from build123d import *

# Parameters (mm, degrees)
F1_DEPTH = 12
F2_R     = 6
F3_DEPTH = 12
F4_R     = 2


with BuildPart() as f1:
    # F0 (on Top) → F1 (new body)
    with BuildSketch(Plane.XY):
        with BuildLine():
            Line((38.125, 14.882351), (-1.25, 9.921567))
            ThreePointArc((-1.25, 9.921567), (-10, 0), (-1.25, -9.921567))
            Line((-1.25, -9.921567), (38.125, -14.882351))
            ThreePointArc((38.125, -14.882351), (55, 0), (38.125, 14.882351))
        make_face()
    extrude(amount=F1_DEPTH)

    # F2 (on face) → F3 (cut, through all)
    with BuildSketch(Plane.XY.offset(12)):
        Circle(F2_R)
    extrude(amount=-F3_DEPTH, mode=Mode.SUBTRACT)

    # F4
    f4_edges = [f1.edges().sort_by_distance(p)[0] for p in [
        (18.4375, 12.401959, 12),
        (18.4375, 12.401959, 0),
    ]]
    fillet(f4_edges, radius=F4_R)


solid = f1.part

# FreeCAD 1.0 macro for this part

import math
import FreeCAD as App
import Part
import Sketcher

V = App.Vector
Q = App.Units.Quantity


def edges_at(feature, points):
    """Names of the edges that pass closest to the given points."""
    edges = feature.Shape.Edges
    near = lambda p: min(range(len(edges)), key=lambda i: edges[i].distToShape(Part.Vertex(*p))[0])
    return sorted({f"Edge{near(p) + 1}" for p in points})

doc = App.newDocument("Part")
body = doc.addObject("PartDesign::Body", "Body")

# Sketch on XY plane
sketch1 = doc.addObject("Sketcher::SketchObject", "Sketch")
body.addObject(sketch1)
sketch1.AttachmentSupport = (doc.XY_Plane, [""])
sketch1.MapMode = "FlatFace"
sketch1.addGeometry([
    Part.LineSegment(V(38, 15, 0), V(-1, 10, 0)),
    Part.ArcOfCircle(Part.Circle(V(0, 0, 0), V(0, 0, 1), 10), math.radians(97), math.radians(263)),
    Part.LineSegment(V(-1, -10, 0), V(38, -15, 0)),
    Part.ArcOfCircle(Part.Circle(V(40, 0, 0), V(0, 0, 1), 15), math.radians(-97), math.radians(97)),
], False)
sketch1.addConstraint([
    Sketcher.Constraint("Tangent", 0, 2, 1, 1),
    Sketcher.Constraint("Tangent", 1, 2, 2, 1),
    Sketcher.Constraint("Tangent", 2, 2, 3, 1),
    Sketcher.Constraint("Tangent", 3, 2, 0, 1),
    Sketcher.Constraint("Coincident", 1, 3, -1, 1),
    Sketcher.Constraint("PointOnObject", 3, 3, -1),
    Sketcher.Constraint("Radius", 1, Q("10 mm")),
    Sketcher.Constraint("Radius", 3, Q("15 mm")),
    Sketcher.Constraint("DistanceX", -1, 1, 3, 3, Q("40 mm")),
])
pad1 = doc.addObject("PartDesign::Pad", "Pad")
body.addObject(pad1)
pad1.Profile = sketch1
pad1.Length = 12

# Sketch on XY plane
sketch2 = doc.addObject("Sketcher::SketchObject", "Sketch001")
body.addObject(sketch2)
sketch2.AttachmentSupport = (doc.XY_Plane, [""])
sketch2.MapMode = "FlatFace"
sketch2.AttachmentOffset = App.Placement(V(0, 0, 12), App.Rotation())
sketch2.addGeometry(Part.Circle(V(0, 0, 0), V(0, 0, 1), 6), False)
sketch2.addConstraint([
    Sketcher.Constraint("Coincident", 0, 3, -1, 1),
    Sketcher.Constraint("Diameter", 0, Q("12 mm")),
])
pocket1 = doc.addObject("PartDesign::Pocket", "Pocket")
body.addObject(pocket1)
pocket1.Profile = sketch2
pocket1.Type = "ThroughAll"
doc.recompute()

fillet = doc.addObject("PartDesign::Fillet", "Fillet")
body.addObject(fillet)
fillet.Base = (pocket1, edges_at(pocket1, [(18.438, 12.402, 12), (18.438, 12.402, 0)]))
fillet.Radius = 2

doc.recompute()
